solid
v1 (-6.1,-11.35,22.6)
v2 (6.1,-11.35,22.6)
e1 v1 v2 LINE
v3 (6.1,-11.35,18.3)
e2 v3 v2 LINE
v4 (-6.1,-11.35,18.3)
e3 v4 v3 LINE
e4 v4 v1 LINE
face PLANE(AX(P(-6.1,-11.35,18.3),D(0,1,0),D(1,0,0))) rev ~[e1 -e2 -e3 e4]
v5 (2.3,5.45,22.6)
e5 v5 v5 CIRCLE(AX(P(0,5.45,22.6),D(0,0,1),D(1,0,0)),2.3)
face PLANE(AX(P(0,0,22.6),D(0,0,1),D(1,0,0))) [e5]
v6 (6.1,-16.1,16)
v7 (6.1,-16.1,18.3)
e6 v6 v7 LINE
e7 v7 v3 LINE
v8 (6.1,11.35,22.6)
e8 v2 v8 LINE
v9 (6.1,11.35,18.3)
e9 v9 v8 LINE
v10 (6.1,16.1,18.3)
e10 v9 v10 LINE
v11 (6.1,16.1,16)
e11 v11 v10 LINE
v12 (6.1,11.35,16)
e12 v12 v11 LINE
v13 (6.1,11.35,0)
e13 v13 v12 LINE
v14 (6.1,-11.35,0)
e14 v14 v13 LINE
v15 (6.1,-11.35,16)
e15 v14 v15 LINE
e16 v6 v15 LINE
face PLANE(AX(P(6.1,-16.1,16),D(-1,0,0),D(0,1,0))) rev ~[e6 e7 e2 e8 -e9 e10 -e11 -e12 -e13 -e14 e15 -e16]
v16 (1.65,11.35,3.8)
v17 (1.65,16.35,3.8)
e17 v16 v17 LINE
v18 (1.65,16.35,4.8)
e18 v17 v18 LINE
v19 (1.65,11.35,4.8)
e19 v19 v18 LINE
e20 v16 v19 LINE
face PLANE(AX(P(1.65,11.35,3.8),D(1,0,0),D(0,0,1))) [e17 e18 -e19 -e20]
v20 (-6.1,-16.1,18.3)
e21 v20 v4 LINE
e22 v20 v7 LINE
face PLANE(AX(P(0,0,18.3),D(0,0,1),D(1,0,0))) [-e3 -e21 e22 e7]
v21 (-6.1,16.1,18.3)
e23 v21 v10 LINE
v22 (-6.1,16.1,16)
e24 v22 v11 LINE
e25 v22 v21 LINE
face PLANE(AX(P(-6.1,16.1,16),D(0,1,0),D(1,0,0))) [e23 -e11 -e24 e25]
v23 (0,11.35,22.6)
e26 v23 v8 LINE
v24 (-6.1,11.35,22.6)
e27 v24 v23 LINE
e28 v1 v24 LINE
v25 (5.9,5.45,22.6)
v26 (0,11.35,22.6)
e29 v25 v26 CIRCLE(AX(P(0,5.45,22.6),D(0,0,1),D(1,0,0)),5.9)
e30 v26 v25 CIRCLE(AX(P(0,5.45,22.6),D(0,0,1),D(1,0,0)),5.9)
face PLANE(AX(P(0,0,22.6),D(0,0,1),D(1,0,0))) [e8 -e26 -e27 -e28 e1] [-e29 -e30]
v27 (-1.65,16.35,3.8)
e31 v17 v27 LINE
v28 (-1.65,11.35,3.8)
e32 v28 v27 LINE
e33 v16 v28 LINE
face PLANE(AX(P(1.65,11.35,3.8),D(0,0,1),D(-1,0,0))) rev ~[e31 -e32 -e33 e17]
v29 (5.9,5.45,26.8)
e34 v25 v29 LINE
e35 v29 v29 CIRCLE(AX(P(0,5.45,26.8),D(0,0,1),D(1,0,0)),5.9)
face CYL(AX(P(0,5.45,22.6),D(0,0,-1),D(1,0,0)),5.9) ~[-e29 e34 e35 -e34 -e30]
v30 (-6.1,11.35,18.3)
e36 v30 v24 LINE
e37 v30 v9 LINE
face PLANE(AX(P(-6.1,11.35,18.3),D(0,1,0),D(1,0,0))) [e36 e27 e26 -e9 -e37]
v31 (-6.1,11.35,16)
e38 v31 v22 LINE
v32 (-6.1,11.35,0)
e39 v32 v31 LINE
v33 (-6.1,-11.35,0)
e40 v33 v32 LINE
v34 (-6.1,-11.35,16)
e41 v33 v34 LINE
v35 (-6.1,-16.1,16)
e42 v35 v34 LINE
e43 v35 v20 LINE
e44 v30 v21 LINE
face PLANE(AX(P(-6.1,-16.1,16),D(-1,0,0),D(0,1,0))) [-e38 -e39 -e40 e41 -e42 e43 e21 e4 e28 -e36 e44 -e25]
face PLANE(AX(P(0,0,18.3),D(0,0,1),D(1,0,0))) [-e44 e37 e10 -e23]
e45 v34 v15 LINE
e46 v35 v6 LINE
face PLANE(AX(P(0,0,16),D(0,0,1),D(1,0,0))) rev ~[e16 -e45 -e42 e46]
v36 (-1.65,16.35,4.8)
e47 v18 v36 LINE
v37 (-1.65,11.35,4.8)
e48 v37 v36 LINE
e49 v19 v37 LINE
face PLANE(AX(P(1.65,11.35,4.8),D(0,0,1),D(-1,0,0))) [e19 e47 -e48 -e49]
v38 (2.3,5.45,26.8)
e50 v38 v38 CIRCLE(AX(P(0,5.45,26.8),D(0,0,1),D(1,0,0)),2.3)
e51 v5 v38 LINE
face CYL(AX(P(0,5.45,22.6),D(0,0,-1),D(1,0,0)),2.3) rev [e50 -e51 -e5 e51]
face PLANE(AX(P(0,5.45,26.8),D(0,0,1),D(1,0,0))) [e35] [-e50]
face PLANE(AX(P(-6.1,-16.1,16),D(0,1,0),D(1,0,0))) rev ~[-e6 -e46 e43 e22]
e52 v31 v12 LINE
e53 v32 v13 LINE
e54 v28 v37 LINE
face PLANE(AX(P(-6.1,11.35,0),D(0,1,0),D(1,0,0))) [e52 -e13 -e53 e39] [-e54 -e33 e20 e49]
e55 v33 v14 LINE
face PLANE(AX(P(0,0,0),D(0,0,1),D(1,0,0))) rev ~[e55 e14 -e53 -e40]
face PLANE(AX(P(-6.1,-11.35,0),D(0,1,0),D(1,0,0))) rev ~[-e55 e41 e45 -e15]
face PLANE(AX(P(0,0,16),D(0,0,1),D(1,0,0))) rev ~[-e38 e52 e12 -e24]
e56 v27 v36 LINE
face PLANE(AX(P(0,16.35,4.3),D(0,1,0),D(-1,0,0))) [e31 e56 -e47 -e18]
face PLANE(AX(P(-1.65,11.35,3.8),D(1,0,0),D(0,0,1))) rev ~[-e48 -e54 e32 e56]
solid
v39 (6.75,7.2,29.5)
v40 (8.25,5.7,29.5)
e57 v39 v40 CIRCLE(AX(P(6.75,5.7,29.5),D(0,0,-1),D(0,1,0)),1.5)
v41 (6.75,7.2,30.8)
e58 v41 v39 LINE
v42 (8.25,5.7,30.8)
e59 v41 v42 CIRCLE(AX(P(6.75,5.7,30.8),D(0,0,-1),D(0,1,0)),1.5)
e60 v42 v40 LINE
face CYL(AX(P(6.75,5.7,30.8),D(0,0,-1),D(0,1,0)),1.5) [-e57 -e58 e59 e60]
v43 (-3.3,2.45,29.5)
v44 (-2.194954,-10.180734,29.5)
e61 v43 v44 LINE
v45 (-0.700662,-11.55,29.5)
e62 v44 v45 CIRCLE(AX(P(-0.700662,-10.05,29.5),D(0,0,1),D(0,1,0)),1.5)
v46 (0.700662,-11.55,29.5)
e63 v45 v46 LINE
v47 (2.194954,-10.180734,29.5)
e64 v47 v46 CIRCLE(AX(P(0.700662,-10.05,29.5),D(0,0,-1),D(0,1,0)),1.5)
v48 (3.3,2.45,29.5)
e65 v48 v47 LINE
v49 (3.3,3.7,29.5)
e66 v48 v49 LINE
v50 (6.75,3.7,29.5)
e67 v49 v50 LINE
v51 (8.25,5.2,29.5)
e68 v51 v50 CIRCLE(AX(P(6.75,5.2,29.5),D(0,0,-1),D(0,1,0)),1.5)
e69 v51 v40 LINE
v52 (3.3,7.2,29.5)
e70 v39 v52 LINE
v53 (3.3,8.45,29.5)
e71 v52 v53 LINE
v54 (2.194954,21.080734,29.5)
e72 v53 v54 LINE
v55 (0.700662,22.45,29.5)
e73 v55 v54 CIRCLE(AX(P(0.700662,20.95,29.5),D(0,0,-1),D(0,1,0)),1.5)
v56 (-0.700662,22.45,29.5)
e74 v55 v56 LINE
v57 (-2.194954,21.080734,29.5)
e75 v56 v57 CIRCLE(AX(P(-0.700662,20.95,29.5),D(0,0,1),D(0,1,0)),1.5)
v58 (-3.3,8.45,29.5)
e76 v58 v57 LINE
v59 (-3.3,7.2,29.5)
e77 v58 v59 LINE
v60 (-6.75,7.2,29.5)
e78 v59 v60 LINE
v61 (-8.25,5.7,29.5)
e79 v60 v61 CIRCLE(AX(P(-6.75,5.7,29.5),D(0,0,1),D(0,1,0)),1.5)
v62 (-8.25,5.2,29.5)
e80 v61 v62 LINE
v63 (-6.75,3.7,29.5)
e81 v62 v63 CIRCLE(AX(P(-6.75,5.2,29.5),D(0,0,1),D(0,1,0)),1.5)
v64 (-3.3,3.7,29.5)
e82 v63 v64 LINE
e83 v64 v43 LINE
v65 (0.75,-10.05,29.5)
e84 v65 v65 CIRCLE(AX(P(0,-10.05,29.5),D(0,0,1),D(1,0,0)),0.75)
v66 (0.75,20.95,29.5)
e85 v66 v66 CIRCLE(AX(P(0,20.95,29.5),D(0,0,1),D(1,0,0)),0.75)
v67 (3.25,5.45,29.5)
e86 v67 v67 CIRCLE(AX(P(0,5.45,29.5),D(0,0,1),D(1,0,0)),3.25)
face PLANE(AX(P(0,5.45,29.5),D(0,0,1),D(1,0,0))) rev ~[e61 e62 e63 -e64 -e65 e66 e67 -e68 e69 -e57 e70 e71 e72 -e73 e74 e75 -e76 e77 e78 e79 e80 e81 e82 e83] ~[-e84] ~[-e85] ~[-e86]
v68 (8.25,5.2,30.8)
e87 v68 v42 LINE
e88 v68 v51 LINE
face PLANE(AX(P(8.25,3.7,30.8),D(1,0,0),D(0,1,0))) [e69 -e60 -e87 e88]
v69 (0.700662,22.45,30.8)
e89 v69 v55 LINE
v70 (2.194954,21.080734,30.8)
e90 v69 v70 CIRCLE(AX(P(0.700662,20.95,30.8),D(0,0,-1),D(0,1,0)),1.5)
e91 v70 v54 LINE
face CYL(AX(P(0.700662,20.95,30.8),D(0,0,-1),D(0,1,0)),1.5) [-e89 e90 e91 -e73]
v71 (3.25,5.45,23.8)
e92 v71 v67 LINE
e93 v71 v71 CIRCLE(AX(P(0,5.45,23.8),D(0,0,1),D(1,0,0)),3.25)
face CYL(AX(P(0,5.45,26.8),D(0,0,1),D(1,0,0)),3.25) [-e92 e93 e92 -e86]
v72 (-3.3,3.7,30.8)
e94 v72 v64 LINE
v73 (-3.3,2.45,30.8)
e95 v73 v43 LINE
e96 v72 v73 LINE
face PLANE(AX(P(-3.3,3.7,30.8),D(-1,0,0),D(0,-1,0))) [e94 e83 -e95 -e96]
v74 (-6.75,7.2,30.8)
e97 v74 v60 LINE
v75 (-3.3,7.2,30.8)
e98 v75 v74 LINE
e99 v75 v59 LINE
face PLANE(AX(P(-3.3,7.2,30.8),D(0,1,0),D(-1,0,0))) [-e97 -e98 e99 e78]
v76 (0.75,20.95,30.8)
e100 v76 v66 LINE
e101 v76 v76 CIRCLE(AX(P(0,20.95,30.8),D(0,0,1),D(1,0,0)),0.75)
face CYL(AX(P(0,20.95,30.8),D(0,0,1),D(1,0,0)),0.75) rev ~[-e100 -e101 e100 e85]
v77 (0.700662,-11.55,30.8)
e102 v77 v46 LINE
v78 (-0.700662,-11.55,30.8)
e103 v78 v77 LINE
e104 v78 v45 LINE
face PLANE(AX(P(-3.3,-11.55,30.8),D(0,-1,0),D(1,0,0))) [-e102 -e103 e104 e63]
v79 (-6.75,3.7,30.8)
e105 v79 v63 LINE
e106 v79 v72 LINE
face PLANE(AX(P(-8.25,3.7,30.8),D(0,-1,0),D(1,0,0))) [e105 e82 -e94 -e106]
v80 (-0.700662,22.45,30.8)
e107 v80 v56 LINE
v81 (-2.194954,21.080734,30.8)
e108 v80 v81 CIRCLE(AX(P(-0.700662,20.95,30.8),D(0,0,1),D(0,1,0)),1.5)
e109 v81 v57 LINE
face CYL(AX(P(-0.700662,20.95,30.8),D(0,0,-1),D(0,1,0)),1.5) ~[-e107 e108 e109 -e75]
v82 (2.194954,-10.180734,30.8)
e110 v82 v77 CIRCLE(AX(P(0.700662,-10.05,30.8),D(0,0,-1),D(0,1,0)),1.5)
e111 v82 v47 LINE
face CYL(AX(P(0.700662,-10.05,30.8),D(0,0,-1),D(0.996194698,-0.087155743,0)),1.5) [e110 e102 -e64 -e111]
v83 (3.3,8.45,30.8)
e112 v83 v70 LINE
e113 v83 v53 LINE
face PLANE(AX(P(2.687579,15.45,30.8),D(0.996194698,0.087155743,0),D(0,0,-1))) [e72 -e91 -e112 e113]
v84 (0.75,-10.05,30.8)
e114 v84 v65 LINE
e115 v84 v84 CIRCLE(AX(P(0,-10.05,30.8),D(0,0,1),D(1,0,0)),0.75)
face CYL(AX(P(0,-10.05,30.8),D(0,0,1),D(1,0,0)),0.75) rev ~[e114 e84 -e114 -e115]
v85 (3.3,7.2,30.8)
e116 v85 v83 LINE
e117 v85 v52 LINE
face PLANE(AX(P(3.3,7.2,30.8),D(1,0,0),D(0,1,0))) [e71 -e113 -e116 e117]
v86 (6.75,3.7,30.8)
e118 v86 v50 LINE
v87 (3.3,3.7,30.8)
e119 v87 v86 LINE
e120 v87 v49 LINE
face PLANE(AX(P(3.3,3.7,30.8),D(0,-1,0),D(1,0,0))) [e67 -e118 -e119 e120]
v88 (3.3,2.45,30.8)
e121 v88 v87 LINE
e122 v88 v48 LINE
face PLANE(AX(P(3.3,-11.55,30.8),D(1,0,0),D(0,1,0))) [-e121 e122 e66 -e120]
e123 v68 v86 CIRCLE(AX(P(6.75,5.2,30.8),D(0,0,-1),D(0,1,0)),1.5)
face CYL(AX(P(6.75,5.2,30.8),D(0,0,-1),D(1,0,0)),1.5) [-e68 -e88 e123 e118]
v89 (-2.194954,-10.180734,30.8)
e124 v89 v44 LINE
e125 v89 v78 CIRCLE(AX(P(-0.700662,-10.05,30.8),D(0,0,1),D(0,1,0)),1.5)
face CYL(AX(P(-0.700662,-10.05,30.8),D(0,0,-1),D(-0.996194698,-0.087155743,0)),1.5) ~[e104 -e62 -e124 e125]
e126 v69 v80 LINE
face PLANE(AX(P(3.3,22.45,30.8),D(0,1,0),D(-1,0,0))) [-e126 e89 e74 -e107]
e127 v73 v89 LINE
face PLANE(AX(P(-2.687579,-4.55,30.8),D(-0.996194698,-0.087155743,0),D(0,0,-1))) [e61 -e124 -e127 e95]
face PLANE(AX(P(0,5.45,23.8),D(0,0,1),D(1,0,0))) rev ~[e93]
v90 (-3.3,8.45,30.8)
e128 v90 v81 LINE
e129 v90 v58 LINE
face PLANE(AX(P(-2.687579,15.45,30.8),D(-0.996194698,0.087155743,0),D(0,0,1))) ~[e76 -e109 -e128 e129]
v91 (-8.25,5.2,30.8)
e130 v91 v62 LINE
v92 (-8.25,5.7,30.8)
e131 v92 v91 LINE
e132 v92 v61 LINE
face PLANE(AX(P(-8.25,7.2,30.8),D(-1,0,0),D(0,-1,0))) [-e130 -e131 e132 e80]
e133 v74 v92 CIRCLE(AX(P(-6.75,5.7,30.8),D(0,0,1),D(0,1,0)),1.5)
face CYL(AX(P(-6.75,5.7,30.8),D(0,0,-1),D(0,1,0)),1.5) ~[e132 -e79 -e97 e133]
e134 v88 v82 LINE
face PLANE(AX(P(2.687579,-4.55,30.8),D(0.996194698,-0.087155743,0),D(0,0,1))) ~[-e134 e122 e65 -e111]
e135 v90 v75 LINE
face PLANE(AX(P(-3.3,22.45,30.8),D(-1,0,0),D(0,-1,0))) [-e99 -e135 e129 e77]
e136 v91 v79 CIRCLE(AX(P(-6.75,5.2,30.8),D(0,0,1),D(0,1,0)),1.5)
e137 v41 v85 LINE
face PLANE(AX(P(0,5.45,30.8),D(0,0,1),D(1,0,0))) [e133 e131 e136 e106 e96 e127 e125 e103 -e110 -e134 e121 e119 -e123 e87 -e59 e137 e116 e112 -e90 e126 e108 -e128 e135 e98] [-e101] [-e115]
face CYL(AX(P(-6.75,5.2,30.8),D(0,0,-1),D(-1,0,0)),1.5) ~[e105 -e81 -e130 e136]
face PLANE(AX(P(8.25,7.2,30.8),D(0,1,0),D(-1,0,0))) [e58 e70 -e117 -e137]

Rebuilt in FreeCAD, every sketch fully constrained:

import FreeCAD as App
import Part
import Sketcher
from FreeCAD import Vector


def edges_at(feature, points):
    """Names of the edges that pass closest to the given points."""
    edges = feature.Shape.Edges
    near = lambda p: min(range(len(edges)), key=lambda i: edges[i].distToShape(Part.Vertex(*p))[0])
    return sorted({f"Edge{near(p) + 1}" for p in points})


def add_polygon(sketch, points):
    """Adds a closed chain of lines whose ends are joined by coincident constraints."""
    first, n = sketch.GeometryCount, len(points)
    for a, b in zip(points, points[1:] + points[:1]):
        sketch.addGeometry(Part.LineSegment(App.Vector(*a, 0), App.Vector(*b, 0)), False)
    for i in range(n):
        sketch.addConstraint(Sketcher.Constraint("Coincident", first + i, 2, first + (i + 1) % n, 1))

doc = App.newDocument("Part")
body = doc.addObject("PartDesign::Body", "Body")

sketch1 = doc.addObject("Sketcher::SketchObject", "Sketch")
body.addObject(sketch1)
sketch1.AttachmentSupport = (doc.XY_Plane, [""])
sketch1.MapMode = "FlatFace"
add_polygon(sketch1, [(-6, 11), (-6, -11), (6, -11), (6, 11)])
sketch1.addConstraint([
    Sketcher.Constraint("Vertical", 0),
    Sketcher.Constraint("Horizontal", 1),
    Sketcher.Constraint("Vertical", 2),
    Sketcher.Constraint("Horizontal", 3),
    Sketcher.Constraint("Symmetric", 0, 2, 2, 2, -1, 1),
    Sketcher.Constraint("DistanceX", 1, 1, 1, 2, 12.2),
    Sketcher.Constraint("DistanceY", 0, 2, 0, 1, 22.7),
])
pad1 = doc.addObject("PartDesign::Pad", "Pad")
body.addObject(pad1)
pad1.Profile = sketch1
pad1.Length = 16

sketch2 = doc.addObject("Sketcher::SketchObject", "Sketch001")
body.addObject(sketch2)
sketch2.AttachmentSupport = (doc.XY_Plane, [""])
sketch2.MapMode = "FlatFace"
sketch2.AttachmentOffset = App.Placement(Vector(0, 0, 16), App.Rotation())
add_polygon(sketch2, [(-6, 16), (-6, -16), (6, -16), (6, 16)])
sketch2.addConstraint([
    Sketcher.Constraint("Vertical", 0),
    Sketcher.Constraint("Horizontal", 1),
    Sketcher.Constraint("Vertical", 2),
    Sketcher.Constraint("Horizontal", 3),
    Sketcher.Constraint("Symmetric", 0, 2, 2, 2, -1, 1),
    Sketcher.Constraint("DistanceX", 1, 1, 1, 2, 12.2),
    Sketcher.Constraint("DistanceY", 0, 2, 0, 1, 32.2),
])
pad2 = doc.addObject("PartDesign::Pad", "Pad001")
body.addObject(pad2)
pad2.Profile = sketch2
pad2.Length = 2.3

sketch3 = doc.addObject("Sketcher::SketchObject", "Sketch002")
body.addObject(sketch3)
sketch3.AttachmentSupport = (doc.XY_Plane, [""])
sketch3.MapMode = "FlatFace"
sketch3.AttachmentOffset = App.Placement(Vector(0, 0, 18.3), App.Rotation())
add_polygon(sketch3, [(-6, 11), (-6, -11), (6, -11), (6, 11)])
sketch3.addConstraint([
    Sketcher.Constraint("Vertical", 0),
    Sketcher.Constraint("Horizontal", 1),
    Sketcher.Constraint("Vertical", 2),
    Sketcher.Constraint("Horizontal", 3),
    Sketcher.Constraint("Symmetric", 0, 2, 2, 2, -1, 1),
    Sketcher.Constraint("DistanceX", 1, 1, 1, 2, 12.2),
    Sketcher.Constraint("DistanceY", 0, 2, 0, 1, 22.7),
])
pad3 = doc.addObject("PartDesign::Pad", "Pad002")
body.addObject(pad3)
pad3.Profile = sketch3
pad3.Length = 4.3

sketch4 = doc.addObject("Sketcher::SketchObject", "Sketch003")
body.addObject(sketch4)
sketch4.AttachmentSupport = (doc.XY_Plane, [""])
sketch4.MapMode = "FlatFace"
sketch4.AttachmentOffset = App.Placement(Vector(0, 0, 22.6), App.Rotation())
sketch4.addGeometry([
    Part.Circle(Vector(0, 5.5, 0), Vector(0, 0, 1), 5.9),
    Part.Circle(Vector(0, 5.5, 0), Vector(0, 0, 1), 2.3),
], False)
sketch4.addConstraint([
    Sketcher.Constraint("Coincident", 1, 3, 0, 3),
    Sketcher.Constraint("PointOnObject", 0, 3, -2),
    Sketcher.Constraint("Diameter", 0, 11.8),
    Sketcher.Constraint("Diameter", 1, 4.6),
    Sketcher.Constraint("DistanceY", -1, 1, 0, 3, 5.45),
])
pad4 = doc.addObject("PartDesign::Pad", "Pad003")
body.addObject(pad4)
pad4.Profile = sketch4
pad4.Length = 4.2

sketch5 = doc.addObject("Sketcher::SketchObject", "Sketch004")
body.addObject(sketch5)
sketch5.AttachmentSupport = (doc.XZ_Plane, [""])
sketch5.MapMode = "FlatFace"
sketch5.AttachmentOffset = App.Placement(Vector(0, 0, -11.35), App.Rotation())
add_polygon(sketch5, [(1.6, 4.8), (1.6, 3.8), (-1.6, 3.8), (-1.6, 4.8)])
sketch5.addConstraint([
    Sketcher.Constraint("Vertical", 0),
    Sketcher.Constraint("Horizontal", 1),
    Sketcher.Constraint("Vertical", 2),
    Sketcher.Constraint("Horizontal", 3),
    Sketcher.Constraint("DistanceY", 0, 2, 0, 1, 1.0),
    Sketcher.Constraint("DistanceX", 1, 2, 1, 1, 3.3),
    Sketcher.Constraint("DistanceY", -1, 1, 0, 2, 3.8),
    Sketcher.Constraint("DistanceX", -1, 1, 0, 2, 1.65),
])
pad5 = doc.addObject("PartDesign::Pad", "Pad004")
body.addObject(pad5)
pad5.Profile = sketch5
pad5.Length = 5
pad5.Reversed = True
body2 = doc.addObject("PartDesign::Body", "Body001")

sketch6 = doc.addObject("Sketcher::SketchObject", "Sketch005")
body2.addObject(sketch6)
sketch6.AttachmentSupport = (doc.getObject("XY_Plane001"), [""])
sketch6.MapMode = "FlatFace"
sketch6.AttachmentOffset = App.Placement(Vector(0, 0, 26.8), App.Rotation())
sketch6.addGeometry(Part.Circle(Vector(0, 5.5, 0), Vector(0, 0, 1), 3.2), False)
sketch6.addConstraint([
    Sketcher.Constraint("PointOnObject", 0, 3, -2),
    Sketcher.Constraint("Diameter", 0, 6.5),
    Sketcher.Constraint("DistanceY", -1, 1, 0, 3, 5.45),
])
pad6 = doc.addObject("PartDesign::Pad", "Pad005")
body2.addObject(pad6)
pad6.Profile = sketch6
pad6.Type = "TwoLengths"
pad6.Length = 4
pad6.Length2 = 3

sketch7 = doc.addObject("Sketcher::SketchObject", "Sketch006")
body2.addObject(sketch7)
sketch7.AttachmentSupport = (doc.getObject("XY_Plane001"), [""])
sketch7.MapMode = "FlatFace"
sketch7.AttachmentOffset = App.Placement(Vector(0, 0, 30.8), App.Rotation())
add_polygon(sketch7, [(3.3, 7.2), (3.3, 22.4), (-3.3, 22.4), (-3.3, 7.2), (-8.2, 7.2), (-8.2, 3.7), (-3.3, 3.7), (-3.3, -11.6), (3.3, -11.6), (3.3, 3.7), (8.2, 3.7), (8.2, 7.2)])
sketch7.addGeometry(Part.Circle(Vector(0, -10.1, 0), Vector(0, 0, 1), 0.8), False)
sketch7.addGeometry(Part.Circle(Vector(0, 20.9, 0), Vector(0, 0, 1), 0.8), False)
sketch7.addConstraint([
    Sketcher.Constraint("Vertical", 0),
    Sketcher.Constraint("Horizontal", 1),
    Sketcher.Constraint("Vertical", 2),
    Sketcher.Constraint("Horizontal", 3),
    Sketcher.Constraint("Vertical", 4),
    Sketcher.Constraint("Horizontal", 5),
    Sketcher.Constraint("Vertical", 6),
    Sketcher.Constraint("Horizontal", 7),
    Sketcher.Constraint("Vertical", 8),
    Sketcher.Constraint("Horizontal", 9),
    Sketcher.Constraint("Vertical", 10),
    Sketcher.Constraint("Horizontal", 11),
    Sketcher.Constraint("Equal", 12, 13),
    Sketcher.Constraint("Symmetric", 5, 2, 8, 2, -2),
    Sketcher.Constraint("Symmetric", 3, 2, 10, 2, -2),
    Sketcher.Constraint("PointOnObject", 12, 3, -2),
    Sketcher.Constraint("PointOnObject", 13, 3, -2),
    Sketcher.Constraint("Vertical", 2, 2, 5, 2),
    Sketcher.Constraint("Vertical", 0, 2, 7, 2),
    Sketcher.Constraint("Equal", 2, 6),
    Sketcher.Constraint("Diameter", 12, 1.5),
    Sketcher.Constraint("DistanceX", 1, 2, 1, 1, 6.6),
    Sketcher.Constraint("DistanceY", 4, 2, 4, 1, 3.5),
    Sketcher.Constraint("DistanceY", 12, 3, 13, 3, 31.0),
    Sketcher.Constraint("DistanceX", 3, 2, 3, 1, 4.95),
    Sketcher.Constraint("DistanceY", 0, 1, 0, 2, 15.25),
    Sketcher.Constraint("DistanceY", -1, 1, 2, 2, 7.2),
    Sketcher.Constraint("DistanceY", 13, 3, 0, 2, 1.5),
])
pad7 = doc.addObject("PartDesign::Pad", "Pad006")
body2.addObject(pad7)
pad7.Profile = sketch7
pad7.Length = 1.3
pad7.Reversed = True
doc.recompute()

chamfer = doc.addObject("PartDesign::Chamfer", "Chamfer")
body2.addObject(chamfer)
chamfer.Base = (pad7, edges_at(pad7, [(-3.3, -11.55, 30.15)]))
chamfer.ChamferType = "Two distances"
chamfer.Size = 14
chamfer.Size2 = 1.224841
chamfer.FlipDirection = True
doc.recompute()

chamfer2 = doc.addObject("PartDesign::Chamfer", "Chamfer001")
body2.addObject(chamfer2)
chamfer2.Base = (chamfer, edges_at(chamfer, [(3.3, -11.55, 30.15)]))
chamfer2.ChamferType = "Two distances"
chamfer2.Size = 14
chamfer2.Size2 = 1.224841
chamfer2.FlipDirection = True
doc.recompute()

chamfer3 = doc.addObject("PartDesign::Chamfer", "Chamfer002")
body2.addObject(chamfer3)
chamfer3.Base = (chamfer2, edges_at(chamfer2, [(3.3, 22.45, 30.15)]))
chamfer3.ChamferType = "Two distances"
chamfer3.Size = 14
chamfer3.Size2 = 1.224841
doc.recompute()

chamfer4 = doc.addObject("PartDesign::Chamfer", "Chamfer003")
body2.addObject(chamfer4)
chamfer4.Base = (chamfer3, edges_at(chamfer3, [(-3.3, 22.45, 30.15)]))
chamfer4.ChamferType = "Two distances"
chamfer4.Size = 14
chamfer4.Size2 = 1.224841
chamfer4.FlipDirection = True
doc.recompute()

fillet = doc.addObject("PartDesign::Fillet", "Fillet")
body2.addObject(fillet)
fillet.Base = (chamfer4, edges_at(chamfer4, [
    (-2.075, 22.45, 30.15),
    (2.075, 22.45, 30.15),
    (-8.25, 7.2, 30.15),
    (-8.25, 3.7, 30.15),
    (8.25, 7.2, 30.15),
    (8.25, 3.7, 30.15),
    (2.075, -11.55, 30.15),
    (-2.075, -11.55, 30.15),
]))
fillet.Radius = 1.5

doc.recompute()
